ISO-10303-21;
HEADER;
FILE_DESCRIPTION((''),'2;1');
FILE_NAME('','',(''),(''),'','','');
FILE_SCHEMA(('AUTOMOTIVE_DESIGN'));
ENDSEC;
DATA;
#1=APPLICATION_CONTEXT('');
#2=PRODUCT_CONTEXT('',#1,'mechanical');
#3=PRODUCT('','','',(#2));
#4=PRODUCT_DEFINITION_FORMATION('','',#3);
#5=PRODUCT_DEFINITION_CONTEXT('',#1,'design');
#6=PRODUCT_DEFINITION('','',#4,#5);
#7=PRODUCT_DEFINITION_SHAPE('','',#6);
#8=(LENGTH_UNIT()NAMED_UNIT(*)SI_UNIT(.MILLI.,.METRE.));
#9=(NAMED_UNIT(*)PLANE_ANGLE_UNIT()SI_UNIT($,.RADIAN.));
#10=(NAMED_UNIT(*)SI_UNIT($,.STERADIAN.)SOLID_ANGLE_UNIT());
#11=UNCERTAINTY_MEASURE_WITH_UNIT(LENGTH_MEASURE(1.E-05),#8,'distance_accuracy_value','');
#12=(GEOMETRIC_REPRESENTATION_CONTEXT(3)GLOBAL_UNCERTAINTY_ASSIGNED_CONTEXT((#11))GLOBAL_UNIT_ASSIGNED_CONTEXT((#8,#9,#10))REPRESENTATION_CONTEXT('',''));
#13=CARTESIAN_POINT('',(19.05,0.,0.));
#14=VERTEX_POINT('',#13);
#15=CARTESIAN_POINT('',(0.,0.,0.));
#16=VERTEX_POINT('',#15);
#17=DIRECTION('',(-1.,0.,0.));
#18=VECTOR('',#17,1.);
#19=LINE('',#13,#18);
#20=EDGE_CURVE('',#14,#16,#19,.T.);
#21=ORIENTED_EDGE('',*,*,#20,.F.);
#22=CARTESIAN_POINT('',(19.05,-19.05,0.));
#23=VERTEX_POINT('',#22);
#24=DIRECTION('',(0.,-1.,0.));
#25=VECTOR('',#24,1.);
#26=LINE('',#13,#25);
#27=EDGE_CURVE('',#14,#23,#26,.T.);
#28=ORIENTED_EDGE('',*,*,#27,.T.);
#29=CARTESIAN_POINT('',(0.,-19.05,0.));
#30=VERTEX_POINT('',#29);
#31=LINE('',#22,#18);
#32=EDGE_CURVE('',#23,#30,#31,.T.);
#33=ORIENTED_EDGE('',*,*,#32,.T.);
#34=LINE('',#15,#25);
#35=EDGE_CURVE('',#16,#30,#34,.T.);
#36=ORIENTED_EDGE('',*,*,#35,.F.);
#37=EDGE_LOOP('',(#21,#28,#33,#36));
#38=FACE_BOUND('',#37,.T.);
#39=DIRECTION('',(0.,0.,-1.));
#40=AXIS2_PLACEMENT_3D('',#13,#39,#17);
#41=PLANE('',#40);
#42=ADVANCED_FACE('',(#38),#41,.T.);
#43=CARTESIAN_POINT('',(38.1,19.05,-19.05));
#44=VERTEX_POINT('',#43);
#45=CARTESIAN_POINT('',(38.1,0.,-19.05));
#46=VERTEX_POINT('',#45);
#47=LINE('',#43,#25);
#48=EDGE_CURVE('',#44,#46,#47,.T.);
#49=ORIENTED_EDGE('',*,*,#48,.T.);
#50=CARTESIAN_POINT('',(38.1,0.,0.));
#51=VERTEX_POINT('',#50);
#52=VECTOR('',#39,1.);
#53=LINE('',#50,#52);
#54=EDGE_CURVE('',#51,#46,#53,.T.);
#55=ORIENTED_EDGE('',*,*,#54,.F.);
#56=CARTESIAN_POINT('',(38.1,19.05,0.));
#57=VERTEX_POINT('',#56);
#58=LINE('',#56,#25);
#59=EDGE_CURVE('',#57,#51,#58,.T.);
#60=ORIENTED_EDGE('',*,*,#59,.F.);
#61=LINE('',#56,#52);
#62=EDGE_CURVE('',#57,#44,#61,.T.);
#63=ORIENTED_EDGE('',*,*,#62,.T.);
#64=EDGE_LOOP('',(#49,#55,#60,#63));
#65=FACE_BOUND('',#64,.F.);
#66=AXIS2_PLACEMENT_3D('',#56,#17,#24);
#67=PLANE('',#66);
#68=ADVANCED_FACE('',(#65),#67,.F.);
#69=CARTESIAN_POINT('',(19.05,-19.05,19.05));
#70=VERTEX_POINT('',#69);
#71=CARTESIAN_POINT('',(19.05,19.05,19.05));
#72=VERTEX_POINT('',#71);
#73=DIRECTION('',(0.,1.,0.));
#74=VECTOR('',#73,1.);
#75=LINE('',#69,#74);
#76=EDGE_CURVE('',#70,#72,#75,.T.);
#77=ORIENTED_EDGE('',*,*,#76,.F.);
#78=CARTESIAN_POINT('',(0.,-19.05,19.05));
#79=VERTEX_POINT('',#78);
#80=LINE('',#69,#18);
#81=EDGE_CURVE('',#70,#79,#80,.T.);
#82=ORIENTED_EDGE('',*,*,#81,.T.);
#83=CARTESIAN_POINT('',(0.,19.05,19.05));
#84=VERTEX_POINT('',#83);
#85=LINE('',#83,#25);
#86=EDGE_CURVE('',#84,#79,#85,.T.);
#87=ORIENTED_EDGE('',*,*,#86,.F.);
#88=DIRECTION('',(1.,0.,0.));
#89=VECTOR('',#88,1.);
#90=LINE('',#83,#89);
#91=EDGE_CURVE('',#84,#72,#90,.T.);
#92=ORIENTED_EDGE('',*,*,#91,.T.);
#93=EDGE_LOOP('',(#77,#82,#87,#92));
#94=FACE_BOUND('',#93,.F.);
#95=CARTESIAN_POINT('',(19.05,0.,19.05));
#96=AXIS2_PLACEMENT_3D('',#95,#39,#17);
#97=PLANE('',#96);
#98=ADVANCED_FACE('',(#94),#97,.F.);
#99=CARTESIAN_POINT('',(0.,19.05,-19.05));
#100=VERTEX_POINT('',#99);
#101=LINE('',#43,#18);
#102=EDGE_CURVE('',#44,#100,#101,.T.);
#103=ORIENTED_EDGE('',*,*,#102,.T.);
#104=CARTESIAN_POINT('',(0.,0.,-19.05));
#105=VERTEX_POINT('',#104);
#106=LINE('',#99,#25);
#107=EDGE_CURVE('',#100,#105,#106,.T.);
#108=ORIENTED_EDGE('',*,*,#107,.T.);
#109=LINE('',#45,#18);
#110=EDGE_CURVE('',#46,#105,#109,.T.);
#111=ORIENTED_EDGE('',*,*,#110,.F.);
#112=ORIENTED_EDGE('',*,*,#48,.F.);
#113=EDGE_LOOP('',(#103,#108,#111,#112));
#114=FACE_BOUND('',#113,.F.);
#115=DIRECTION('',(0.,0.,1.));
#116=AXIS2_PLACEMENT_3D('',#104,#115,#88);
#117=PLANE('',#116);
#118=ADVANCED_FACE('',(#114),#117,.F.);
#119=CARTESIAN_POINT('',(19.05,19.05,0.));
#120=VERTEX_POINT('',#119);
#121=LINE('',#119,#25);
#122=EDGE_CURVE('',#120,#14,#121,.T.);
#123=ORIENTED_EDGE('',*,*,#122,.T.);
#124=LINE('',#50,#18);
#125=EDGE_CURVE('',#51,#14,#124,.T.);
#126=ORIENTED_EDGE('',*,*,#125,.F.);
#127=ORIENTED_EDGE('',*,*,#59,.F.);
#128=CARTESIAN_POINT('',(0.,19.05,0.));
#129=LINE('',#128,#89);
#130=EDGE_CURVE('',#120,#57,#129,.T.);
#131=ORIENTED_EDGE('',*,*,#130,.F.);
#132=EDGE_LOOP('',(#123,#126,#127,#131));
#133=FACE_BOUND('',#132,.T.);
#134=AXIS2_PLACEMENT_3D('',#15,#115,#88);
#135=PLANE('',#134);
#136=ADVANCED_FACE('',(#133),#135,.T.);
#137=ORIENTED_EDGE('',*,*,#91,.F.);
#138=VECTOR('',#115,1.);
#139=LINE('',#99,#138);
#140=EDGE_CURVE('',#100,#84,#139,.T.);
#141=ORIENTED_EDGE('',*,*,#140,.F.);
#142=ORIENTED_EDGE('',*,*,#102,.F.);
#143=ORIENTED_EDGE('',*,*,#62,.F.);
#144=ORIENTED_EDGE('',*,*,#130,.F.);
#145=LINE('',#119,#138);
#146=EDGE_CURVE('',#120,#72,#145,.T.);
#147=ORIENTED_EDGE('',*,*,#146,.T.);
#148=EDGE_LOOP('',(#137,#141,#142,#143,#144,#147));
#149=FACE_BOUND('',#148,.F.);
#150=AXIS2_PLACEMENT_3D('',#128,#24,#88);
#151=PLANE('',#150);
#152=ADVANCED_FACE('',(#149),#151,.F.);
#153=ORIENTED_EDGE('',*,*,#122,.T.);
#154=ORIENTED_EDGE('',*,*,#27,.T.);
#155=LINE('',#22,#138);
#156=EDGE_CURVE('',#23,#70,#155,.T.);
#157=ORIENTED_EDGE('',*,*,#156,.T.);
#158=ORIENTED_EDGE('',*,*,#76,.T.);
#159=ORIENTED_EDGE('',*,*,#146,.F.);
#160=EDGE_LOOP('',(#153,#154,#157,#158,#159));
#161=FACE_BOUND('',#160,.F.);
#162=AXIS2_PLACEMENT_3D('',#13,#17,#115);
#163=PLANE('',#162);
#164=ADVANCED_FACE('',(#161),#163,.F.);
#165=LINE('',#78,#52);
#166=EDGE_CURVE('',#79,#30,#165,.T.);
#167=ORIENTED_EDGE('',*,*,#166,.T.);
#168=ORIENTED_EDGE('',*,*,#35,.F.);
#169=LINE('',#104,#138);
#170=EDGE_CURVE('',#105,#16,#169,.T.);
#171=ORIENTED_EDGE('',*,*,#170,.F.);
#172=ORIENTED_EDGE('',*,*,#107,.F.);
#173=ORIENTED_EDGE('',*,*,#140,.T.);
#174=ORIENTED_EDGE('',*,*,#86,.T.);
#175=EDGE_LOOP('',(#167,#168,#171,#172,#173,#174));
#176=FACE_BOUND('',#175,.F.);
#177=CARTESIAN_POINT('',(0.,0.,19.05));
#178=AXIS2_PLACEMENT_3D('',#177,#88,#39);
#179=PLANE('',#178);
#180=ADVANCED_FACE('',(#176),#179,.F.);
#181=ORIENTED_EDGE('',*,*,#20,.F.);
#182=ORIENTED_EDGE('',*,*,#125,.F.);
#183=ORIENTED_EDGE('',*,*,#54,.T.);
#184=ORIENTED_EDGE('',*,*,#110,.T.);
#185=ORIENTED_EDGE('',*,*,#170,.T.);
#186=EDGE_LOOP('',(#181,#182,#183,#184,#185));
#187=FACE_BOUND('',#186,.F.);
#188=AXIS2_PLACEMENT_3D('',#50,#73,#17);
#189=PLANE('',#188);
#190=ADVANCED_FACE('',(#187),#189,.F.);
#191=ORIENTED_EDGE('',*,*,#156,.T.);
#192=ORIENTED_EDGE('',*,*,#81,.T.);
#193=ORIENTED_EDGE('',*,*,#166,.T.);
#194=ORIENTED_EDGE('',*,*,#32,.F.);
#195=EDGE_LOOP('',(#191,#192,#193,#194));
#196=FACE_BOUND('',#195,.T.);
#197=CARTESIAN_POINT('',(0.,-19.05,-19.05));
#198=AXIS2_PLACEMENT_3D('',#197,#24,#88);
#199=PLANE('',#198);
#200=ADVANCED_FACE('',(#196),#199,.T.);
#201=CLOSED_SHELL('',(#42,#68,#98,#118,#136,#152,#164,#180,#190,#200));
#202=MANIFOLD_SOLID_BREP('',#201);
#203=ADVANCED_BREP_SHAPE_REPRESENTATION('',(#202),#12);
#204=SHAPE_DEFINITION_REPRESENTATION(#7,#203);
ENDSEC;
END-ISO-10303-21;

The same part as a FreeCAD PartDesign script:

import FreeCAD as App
import Part
import Sketcher
Q = App.Units.Quantity

doc = App.newDocument("Part")
params = doc.addObject("Spreadsheet::Sheet", "Params")
for row, (alias, value) in enumerate([
    ("sketch1_width", "1.5 in"),
    ("sketch1_height", "0.75 in"),
    ("pad1_length", "0.75 in"),
    ("sketch2_width", "0.75 in"),
    ("pad2_length", "0.75 in"),
    ("sketch3_width", "0.75 in"),
    ("pad3_length", "0.75 in"),
], start=1):
    params.set(f"A{row}", alias)
    params.set(f"B{row}", "=" + value)
    params.setAlias(f"B{row}", alias)

body = doc.addObject("PartDesign::Body", "Body")

# Sketch on XY plane
sketch1 = doc.addObject("Sketcher::SketchObject", "Sketch")
body.addObject(sketch1)
sketch1.AttachmentSupport = (doc.XY_Plane, [""])
sketch1.MapMode = "FlatFace"
sketch1.addGeometry([
    Part.LineSegment(App.Vector(38, 19, 0), App.Vector(0, 19, 0)),
    Part.LineSegment(App.Vector(0, 19, 0), App.Vector(0, 0, 0)),
    Part.LineSegment(App.Vector(0, 0, 0), App.Vector(38, 0, 0)),
    Part.LineSegment(App.Vector(38, 0, 0), App.Vector(38, 19, 0)),
], False)
sketch1.addConstraint([
    Sketcher.Constraint("Coincident", 0, 2, 1, 1),
    Sketcher.Constraint("Coincident", 1, 2, 2, 1),
    Sketcher.Constraint("Coincident", 2, 2, 3, 1),
    Sketcher.Constraint("Coincident", 3, 2, 0, 1),
    Sketcher.Constraint("Horizontal", 0),
    Sketcher.Constraint("Vertical", 1),
    Sketcher.Constraint("Horizontal", 2),
    Sketcher.Constraint("Vertical", 3),
    Sketcher.Constraint("Coincident", 1, 2, -1, 1),
    Sketcher.Constraint("DistanceX", 0, 2, 0, 1, Q("1.5 in")),
    Sketcher.Constraint("DistanceY", 1, 2, 1, 1, Q("0.75 in")),
])
sketch1.setExpression("Constraints[9]", "Params.sketch1_width")
sketch1.setExpression("Constraints[10]", "Params.sketch1_height")
pad1 = doc.addObject("PartDesign::Pad", "Pad")
body.addObject(pad1)
pad1.Profile = sketch1
pad1.setExpression("Length", "Params.pad1_length")
pad1.Reversed = True

# Sketch on XY plane
sketch2 = doc.addObject("Sketcher::SketchObject", "Sketch001")
body.addObject(sketch2)
sketch2.AttachmentSupport = (doc.XY_Plane, [""])
sketch2.MapMode = "FlatFace"
sketch2.addGeometry([
    Part.LineSegment(App.Vector(0, 19, 0), App.Vector(0, 0, 0)),
    Part.LineSegment(App.Vector(0, 0, 0), App.Vector(19, 0, 0)),
    Part.LineSegment(App.Vector(19, 0, 0), App.Vector(19, 19, 0)),
    Part.LineSegment(App.Vector(19, 19, 0), App.Vector(0, 19, 0)),
], False)
sketch2.addConstraint([
    Sketcher.Constraint("Coincident", 0, 2, 1, 1),
    Sketcher.Constraint("Coincident", 1, 2, 2, 1),
    Sketcher.Constraint("Coincident", 2, 2, 3, 1),
    Sketcher.Constraint("Coincident", 3, 2, 0, 1),
    Sketcher.Constraint("Vertical", 0),
    Sketcher.Constraint("Horizontal", 1),
    Sketcher.Constraint("Vertical", 2),
    Sketcher.Constraint("Horizontal", 3),
    Sketcher.Constraint("Coincident", 0, 2, -1, 1),
    Sketcher.Constraint("Equal", 3, 0),
    Sketcher.Constraint("DistanceX", 1, 1, 1, 2, Q("0.75 in")),
])
sketch2.setExpression("Constraints[10]", "Params.sketch2_width")
pad2 = doc.addObject("PartDesign::Pad", "Pad001")
body.addObject(pad2)
pad2.Profile = sketch2
pad2.setExpression("Length", "Params.pad2_length")

# Sketch on XZ plane
sketch3 = doc.addObject("Sketcher::SketchObject", "Sketch002")
body.addObject(sketch3)
sketch3.AttachmentSupport = (doc.XZ_Plane, [""])
sketch3.MapMode = "FlatFace"
sketch3.addGeometry([
    Part.LineSegment(App.Vector(19, 19, 0), App.Vector(0, 19, 0)),
    Part.LineSegment(App.Vector(0, 19, 0), App.Vector(0, 0, 0)),
    Part.LineSegment(App.Vector(0, 0, 0), App.Vector(19, 0, 0)),
    Part.LineSegment(App.Vector(19, 0, 0), App.Vector(19, 19, 0)),
], False)
sketch3.addConstraint([
    Sketcher.Constraint("Coincident", 0, 2, 1, 1),
    Sketcher.Constraint("Coincident", 1, 2, 2, 1),
    Sketcher.Constraint("Coincident", 2, 2, 3, 1),
    Sketcher.Constraint("Coincident", 3, 2, 0, 1),
    Sketcher.Constraint("Horizontal", 0),
    Sketcher.Constraint("Vertical", 1),
    Sketcher.Constraint("Horizontal", 2),
    Sketcher.Constraint("Vertical", 3),
    Sketcher.Constraint("Coincident", 1, 2, -1, 1),
    Sketcher.Constraint("Equal", 2, 1),
    Sketcher.Constraint("DistanceX", 0, 2, 0, 1, Q("0.75 in")),
])
sketch3.setExpression("Constraints[10]", "Params.sketch3_width")
pad3 = doc.addObject("PartDesign::Pad", "Pad002")
body.addObject(pad3)
pad3.Profile = sketch3
pad3.setExpression("Length", "Params.pad3_length")

doc.recompute()
